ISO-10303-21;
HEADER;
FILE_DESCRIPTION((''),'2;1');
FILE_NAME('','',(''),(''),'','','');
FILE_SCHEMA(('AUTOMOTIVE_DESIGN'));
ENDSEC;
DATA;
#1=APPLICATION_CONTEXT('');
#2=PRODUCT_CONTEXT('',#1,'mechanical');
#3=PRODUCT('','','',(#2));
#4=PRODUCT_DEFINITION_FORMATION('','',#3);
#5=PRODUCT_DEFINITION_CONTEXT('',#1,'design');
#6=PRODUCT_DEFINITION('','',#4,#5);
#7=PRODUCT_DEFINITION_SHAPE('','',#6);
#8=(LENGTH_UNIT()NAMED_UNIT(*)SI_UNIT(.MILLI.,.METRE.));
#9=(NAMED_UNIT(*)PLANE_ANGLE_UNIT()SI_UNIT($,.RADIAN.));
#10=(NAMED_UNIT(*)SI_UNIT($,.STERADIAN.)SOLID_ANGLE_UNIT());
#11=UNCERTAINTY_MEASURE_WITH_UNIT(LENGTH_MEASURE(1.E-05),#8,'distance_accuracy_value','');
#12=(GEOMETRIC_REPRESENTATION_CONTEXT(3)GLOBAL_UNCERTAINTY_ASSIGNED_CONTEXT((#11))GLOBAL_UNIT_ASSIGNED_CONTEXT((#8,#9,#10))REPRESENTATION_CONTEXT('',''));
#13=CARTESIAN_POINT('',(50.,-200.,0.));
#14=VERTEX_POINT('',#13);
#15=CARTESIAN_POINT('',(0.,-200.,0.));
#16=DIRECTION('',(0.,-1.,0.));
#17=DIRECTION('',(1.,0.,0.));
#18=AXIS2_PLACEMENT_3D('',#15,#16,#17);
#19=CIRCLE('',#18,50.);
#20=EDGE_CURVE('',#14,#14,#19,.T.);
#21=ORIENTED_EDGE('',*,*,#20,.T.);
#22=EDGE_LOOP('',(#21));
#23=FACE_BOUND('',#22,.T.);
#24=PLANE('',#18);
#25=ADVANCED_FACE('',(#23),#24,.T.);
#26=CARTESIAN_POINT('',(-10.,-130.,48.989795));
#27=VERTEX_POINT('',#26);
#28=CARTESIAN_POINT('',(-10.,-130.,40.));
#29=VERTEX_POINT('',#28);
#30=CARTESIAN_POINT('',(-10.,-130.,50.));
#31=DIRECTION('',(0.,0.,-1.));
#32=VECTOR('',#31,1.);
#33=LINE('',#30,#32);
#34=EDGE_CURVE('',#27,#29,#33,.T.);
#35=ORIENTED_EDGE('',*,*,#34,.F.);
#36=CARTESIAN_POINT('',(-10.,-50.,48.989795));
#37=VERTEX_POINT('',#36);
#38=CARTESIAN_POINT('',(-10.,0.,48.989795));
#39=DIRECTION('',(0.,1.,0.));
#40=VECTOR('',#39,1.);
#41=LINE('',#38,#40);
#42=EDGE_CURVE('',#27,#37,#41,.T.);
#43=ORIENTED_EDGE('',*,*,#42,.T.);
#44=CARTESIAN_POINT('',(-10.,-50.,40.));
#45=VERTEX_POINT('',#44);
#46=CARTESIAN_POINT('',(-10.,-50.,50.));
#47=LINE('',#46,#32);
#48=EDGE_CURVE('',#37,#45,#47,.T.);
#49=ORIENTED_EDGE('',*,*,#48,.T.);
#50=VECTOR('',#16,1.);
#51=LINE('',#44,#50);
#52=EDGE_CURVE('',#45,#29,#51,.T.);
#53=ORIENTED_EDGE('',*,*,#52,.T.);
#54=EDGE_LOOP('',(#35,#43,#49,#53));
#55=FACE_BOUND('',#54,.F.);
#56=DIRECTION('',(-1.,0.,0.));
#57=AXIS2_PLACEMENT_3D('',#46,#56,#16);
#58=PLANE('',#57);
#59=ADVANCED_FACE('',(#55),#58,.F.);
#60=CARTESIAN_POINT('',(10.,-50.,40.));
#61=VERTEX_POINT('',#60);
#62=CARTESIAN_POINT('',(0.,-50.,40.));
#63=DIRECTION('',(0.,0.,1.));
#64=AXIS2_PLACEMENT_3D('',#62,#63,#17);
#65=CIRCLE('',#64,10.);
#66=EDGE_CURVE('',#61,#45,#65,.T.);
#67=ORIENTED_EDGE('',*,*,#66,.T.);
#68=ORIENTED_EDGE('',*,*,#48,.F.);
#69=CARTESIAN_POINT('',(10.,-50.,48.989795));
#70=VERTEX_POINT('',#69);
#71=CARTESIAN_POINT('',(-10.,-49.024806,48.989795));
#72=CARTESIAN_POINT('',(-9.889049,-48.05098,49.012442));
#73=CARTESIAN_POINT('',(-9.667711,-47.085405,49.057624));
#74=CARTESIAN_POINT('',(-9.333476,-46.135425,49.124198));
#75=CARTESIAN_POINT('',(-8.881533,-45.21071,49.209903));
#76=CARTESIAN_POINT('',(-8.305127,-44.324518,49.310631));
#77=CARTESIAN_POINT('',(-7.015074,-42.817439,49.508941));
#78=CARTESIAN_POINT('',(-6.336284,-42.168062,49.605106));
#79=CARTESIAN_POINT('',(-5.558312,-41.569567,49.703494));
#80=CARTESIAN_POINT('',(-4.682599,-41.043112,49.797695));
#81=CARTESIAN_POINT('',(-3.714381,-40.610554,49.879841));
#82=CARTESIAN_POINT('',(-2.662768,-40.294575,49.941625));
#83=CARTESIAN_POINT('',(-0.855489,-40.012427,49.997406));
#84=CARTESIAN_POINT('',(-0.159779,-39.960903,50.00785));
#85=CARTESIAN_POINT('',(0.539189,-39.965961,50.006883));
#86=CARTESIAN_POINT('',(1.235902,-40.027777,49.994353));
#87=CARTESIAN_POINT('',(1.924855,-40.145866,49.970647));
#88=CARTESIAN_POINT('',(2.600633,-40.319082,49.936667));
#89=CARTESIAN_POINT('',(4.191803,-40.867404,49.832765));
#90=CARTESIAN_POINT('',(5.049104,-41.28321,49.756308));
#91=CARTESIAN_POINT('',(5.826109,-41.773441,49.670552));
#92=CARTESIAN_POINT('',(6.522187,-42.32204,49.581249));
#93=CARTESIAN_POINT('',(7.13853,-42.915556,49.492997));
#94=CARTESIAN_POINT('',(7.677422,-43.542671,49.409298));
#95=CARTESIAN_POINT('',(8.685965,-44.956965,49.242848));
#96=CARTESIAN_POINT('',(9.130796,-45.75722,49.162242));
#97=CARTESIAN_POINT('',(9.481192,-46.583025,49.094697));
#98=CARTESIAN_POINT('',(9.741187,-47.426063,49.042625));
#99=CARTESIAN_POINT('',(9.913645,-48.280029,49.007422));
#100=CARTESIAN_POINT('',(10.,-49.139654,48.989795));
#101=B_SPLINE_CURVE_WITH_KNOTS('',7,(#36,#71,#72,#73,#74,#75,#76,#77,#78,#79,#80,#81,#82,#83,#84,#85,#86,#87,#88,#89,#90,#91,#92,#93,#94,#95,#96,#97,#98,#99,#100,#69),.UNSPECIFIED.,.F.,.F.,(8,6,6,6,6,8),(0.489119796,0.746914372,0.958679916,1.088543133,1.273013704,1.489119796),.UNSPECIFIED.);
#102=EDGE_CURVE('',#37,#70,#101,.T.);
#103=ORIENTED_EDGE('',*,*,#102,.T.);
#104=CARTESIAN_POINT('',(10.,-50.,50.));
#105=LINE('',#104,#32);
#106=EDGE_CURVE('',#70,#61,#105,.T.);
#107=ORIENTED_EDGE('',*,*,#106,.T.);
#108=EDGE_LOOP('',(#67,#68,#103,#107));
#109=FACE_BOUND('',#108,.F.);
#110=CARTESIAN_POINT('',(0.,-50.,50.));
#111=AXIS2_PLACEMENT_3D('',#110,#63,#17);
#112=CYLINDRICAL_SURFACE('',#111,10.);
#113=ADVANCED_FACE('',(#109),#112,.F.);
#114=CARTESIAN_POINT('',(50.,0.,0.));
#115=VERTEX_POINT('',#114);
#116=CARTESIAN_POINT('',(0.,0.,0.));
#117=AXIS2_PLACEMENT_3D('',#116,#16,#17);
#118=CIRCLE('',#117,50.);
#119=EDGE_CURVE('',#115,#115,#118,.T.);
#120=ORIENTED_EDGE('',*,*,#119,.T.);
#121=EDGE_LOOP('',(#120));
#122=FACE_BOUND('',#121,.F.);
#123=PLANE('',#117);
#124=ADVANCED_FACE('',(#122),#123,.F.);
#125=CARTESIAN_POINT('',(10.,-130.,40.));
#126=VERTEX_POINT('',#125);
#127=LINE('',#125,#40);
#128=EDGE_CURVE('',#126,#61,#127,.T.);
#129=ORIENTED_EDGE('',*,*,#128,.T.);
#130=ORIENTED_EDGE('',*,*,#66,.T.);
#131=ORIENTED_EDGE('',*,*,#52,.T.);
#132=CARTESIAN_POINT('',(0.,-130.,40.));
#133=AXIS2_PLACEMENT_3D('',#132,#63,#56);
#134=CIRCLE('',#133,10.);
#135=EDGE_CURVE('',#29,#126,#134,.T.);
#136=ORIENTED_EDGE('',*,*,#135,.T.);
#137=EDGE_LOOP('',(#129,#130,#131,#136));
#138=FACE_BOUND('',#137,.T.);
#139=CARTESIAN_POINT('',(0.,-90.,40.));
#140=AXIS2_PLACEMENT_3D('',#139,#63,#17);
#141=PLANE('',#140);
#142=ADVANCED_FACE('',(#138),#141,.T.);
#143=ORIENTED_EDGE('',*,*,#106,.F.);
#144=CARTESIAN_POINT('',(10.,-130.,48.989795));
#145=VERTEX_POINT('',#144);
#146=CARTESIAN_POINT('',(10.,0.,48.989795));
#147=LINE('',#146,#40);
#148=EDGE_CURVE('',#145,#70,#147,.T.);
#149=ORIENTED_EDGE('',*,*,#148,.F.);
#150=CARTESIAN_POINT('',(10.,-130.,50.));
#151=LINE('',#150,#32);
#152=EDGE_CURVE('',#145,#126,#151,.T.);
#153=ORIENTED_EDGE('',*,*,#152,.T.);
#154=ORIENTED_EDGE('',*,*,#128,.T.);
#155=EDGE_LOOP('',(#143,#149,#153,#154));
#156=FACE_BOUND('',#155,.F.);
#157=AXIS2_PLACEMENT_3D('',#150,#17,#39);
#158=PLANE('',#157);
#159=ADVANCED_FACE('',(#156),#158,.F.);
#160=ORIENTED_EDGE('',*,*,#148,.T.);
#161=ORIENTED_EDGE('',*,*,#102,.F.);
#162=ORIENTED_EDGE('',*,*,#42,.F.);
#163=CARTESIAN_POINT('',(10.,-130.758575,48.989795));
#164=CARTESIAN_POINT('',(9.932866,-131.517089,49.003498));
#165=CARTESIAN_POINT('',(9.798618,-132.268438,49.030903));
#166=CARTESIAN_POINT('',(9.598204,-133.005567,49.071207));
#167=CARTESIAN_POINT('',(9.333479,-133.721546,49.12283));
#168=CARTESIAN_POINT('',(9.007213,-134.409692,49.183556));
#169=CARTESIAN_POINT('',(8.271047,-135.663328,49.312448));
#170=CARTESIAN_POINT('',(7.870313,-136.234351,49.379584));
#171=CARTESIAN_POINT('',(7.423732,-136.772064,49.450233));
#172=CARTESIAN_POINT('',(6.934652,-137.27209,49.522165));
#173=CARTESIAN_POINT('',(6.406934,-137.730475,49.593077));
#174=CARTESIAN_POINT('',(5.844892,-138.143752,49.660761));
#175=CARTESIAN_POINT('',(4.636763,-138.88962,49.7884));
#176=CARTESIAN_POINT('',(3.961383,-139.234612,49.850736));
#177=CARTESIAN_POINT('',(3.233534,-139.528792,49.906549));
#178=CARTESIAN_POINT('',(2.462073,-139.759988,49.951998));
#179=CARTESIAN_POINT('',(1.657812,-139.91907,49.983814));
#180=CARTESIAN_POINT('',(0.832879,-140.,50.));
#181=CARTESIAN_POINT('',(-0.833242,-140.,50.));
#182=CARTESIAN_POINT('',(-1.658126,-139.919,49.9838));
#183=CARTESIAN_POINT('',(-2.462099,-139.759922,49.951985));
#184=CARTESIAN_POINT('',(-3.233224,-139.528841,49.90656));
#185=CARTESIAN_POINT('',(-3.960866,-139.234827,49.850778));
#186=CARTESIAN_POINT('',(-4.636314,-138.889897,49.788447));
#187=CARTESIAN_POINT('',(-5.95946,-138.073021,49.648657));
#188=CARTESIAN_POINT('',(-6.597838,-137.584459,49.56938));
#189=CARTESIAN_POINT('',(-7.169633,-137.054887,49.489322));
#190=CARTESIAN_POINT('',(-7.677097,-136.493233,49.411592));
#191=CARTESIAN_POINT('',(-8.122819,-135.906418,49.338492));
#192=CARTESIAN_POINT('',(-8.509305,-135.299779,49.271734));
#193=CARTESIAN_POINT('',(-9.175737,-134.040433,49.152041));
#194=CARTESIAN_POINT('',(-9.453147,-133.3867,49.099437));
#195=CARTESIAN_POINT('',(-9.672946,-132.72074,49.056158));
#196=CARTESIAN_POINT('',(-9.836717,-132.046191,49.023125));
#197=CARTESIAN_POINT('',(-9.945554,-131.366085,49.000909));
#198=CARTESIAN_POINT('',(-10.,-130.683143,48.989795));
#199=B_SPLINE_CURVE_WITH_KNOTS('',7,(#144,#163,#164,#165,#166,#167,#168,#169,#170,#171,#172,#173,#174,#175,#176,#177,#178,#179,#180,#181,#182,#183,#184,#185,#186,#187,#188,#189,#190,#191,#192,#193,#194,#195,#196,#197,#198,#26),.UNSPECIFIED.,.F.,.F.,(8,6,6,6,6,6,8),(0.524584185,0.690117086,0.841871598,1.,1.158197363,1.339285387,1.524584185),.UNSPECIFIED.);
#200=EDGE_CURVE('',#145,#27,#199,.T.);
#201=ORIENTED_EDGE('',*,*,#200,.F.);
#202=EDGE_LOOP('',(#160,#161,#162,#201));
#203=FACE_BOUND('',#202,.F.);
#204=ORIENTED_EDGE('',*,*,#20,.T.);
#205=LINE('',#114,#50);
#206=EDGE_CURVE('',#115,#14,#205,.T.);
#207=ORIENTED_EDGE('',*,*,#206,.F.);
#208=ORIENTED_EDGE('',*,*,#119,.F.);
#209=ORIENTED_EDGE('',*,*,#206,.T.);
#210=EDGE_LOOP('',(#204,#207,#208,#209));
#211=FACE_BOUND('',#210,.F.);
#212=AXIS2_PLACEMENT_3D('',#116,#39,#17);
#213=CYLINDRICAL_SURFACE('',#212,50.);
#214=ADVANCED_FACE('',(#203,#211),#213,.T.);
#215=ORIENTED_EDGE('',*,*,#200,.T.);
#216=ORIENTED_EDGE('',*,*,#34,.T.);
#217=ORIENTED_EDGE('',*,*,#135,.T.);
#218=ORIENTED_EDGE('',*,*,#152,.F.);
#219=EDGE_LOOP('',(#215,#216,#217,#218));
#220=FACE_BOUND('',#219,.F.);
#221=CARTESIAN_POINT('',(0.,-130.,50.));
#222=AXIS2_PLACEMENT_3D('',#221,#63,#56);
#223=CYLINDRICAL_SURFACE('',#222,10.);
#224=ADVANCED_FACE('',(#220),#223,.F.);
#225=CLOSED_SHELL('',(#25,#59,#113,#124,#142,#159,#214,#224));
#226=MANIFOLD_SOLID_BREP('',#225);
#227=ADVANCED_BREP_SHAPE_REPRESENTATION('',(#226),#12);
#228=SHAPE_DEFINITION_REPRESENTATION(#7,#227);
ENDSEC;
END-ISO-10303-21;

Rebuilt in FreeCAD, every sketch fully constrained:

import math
import FreeCAD as App
import Part
import Sketcher

V = App.Vector

doc = App.newDocument("Part")
params = doc.addObject("Spreadsheet::Sheet", "Params")
for row, (alias, value) in enumerate([
    ("sketch1_diameter", "100 mm"),
    ("pad1_length", "200 mm"),
    ("sketch2_radius", "10 mm"),
    ("sketch2_height", "80 mm"),
    ("pocket1_length", "10 mm"),
], start=1):
    params.set(f"A{row}", alias)
    params.set(f"B{row}", "=" + value)
    params.setAlias(f"B{row}", alias)

body = doc.addObject("PartDesign::Body", "Body")

# Sketch on XZ plane
sketch1 = doc.addObject("Sketcher::SketchObject", "Sketch")
body.addObject(sketch1)
sketch1.AttachmentSupport = (doc.XZ_Plane, [""])
sketch1.MapMode = "FlatFace"
sketch1.addGeometry(Part.Circle(V(0, 0, 0), V(0, 0, 1), 50), False)
sketch1.addConstraint(Sketcher.Constraint("Coincident", 0, 3, -1, 1))
sketch1.addConstraint(Sketcher.Constraint("Diameter", 0, 100.0))
sketch1.setExpression("Constraints[1]", "Params.sketch1_diameter")
pad1 = doc.addObject("PartDesign::Pad", "Pad")
body.addObject(pad1)
pad1.Profile = sketch1
pad1.setExpression("Length", "Params.pad1_length")

# Sketch on XY plane
sketch2 = doc.addObject("Sketcher::SketchObject", "Sketch001")
body.addObject(sketch2)
sketch2.AttachmentSupport = (doc.XY_Plane, [""])
sketch2.MapMode = "FlatFace"
sketch2.AttachmentOffset = App.Placement(V(0, 0, 50), App.Rotation())
sketch2.addGeometry(Part.LineSegment(V(-10, -50, 0), V(-10, -130, 0)), False)
sketch2.addGeometry(Part.ArcOfCircle(Part.Circle(V(0, -130, 0), V(0, 0, 1), 10), math.radians(180), math.radians(360)), False)
sketch2.addGeometry(Part.LineSegment(V(10, -130, 0), V(10, -50, 0)), False)
sketch2.addGeometry(Part.ArcOfCircle(Part.Circle(V(0, -50, 0), V(0, 0, 1), 10), math.radians(0), math.radians(180)), False)
sketch2.addConstraint(Sketcher.Constraint("Tangent", 0, 2, 1, 1))
sketch2.addConstraint(Sketcher.Constraint("Tangent", 1, 2, 2, 1))
sketch2.addConstraint(Sketcher.Constraint("Tangent", 2, 2, 3, 1))
sketch2.addConstraint(Sketcher.Constraint("Tangent", 3, 2, 0, 1))
sketch2.addConstraint(Sketcher.Constraint("Vertical", 0))
sketch2.addConstraint(Sketcher.Constraint("Vertical", 2))
sketch2.addConstraint(Sketcher.Constraint("PointOnObject", 1, 3, -2))
sketch2.addConstraint(Sketcher.Constraint("Radius", 1, 10.0))
sketch2.addConstraint(Sketcher.Constraint("DistanceY", 0, 2, 0, 1, 80.0))
sketch2.addConstraint(Sketcher.Constraint("DistanceY", 1, 3, -1, 1, 130.0))
sketch2.setExpression("Constraints[7]", "Params.sketch2_radius")
sketch2.setExpression("Constraints[8]", "Params.sketch2_height")
pocket1 = doc.addObject("PartDesign::Pocket", "Pocket")
body.addObject(pocket1)
pocket1.Profile = sketch2
pocket1.setExpression("Length", "Params.pocket1_length")

doc.recompute()
